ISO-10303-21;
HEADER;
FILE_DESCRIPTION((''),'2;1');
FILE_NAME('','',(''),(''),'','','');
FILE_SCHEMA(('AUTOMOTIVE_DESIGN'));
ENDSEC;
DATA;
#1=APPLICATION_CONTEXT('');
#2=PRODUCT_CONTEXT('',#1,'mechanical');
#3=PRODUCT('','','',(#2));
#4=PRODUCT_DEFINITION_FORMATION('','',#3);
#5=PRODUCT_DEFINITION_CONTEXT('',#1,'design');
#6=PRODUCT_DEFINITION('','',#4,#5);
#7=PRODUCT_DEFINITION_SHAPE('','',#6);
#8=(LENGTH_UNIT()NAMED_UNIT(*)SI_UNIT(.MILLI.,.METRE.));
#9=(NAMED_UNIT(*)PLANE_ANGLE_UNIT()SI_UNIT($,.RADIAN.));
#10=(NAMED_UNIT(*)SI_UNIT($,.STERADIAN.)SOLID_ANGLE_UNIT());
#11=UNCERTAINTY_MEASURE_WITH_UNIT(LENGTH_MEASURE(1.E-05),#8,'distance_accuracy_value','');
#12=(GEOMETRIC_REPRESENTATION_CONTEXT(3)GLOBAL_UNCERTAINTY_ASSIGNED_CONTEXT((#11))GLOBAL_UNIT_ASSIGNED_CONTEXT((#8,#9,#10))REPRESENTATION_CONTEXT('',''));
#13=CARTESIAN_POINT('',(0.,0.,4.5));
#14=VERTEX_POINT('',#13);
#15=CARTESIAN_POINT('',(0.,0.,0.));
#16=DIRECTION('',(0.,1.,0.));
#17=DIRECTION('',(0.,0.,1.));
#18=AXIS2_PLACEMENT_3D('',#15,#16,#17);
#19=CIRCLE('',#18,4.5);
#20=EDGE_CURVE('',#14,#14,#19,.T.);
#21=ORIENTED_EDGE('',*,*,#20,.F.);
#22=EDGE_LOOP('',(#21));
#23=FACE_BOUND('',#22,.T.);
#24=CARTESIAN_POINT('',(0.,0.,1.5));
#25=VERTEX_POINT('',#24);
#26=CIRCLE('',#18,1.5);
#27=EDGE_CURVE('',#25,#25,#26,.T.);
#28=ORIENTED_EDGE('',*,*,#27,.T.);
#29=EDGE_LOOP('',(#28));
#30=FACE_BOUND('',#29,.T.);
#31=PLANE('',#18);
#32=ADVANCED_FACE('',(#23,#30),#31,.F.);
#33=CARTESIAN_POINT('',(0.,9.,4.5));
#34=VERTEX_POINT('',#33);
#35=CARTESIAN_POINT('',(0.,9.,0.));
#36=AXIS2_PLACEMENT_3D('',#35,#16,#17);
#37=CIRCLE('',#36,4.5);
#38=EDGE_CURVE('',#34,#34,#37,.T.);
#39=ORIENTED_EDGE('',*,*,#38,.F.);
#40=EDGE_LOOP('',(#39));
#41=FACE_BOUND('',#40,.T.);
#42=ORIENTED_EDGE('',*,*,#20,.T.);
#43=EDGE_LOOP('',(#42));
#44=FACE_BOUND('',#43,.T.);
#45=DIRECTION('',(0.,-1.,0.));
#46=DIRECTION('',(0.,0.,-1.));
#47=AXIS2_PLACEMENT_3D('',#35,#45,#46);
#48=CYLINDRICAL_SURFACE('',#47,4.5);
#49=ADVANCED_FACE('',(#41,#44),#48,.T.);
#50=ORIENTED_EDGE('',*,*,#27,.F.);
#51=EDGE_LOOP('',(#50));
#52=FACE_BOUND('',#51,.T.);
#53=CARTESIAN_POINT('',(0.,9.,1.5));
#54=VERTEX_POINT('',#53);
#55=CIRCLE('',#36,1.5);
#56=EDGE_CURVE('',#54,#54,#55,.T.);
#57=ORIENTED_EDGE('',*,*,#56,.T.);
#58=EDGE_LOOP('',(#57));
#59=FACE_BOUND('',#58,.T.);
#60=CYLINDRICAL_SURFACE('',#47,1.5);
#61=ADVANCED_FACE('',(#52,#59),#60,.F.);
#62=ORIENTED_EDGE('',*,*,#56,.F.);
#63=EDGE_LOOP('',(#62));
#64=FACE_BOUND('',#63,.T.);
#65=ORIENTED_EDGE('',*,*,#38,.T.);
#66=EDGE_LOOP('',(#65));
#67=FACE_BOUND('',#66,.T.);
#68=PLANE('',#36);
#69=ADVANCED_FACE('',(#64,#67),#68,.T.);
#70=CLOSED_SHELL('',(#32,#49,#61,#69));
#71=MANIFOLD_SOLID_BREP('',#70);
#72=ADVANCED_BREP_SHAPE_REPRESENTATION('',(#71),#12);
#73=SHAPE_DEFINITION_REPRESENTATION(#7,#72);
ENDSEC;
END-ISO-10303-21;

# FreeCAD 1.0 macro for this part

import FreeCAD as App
import Part
import Sketcher

V = App.Vector

doc = App.newDocument("Part")
body = doc.addObject("PartDesign::Body", "Body")

# Sketch on XZ plane
sketch1 = body.newObject("Sketcher::SketchObject", "Sketch")
sketch1.AttachmentSupport = (doc.getObject("XZ_Plane"), [""])
sketch1.MapMode = "FlatFace"
sketch1.addGeometry([
    Part.Circle(V(0, 0, 0), V(0, 0, 1), 4.5),
    Part.Circle(V(0, 0, 0), V(0, 0, 1), 1.5),
], False)
sketch1.addConstraint([
    Sketcher.Constraint("Coincident", 0, 3, -1, 1),
    Sketcher.Constraint("Coincident", 1, 3, -1, 1),
    Sketcher.Constraint("Diameter", 0, 9.0),
    Sketcher.Constraint("Diameter", 1, 3.0),
])
pad1 = body.newObject("PartDesign::Pad", "Pad")
pad1.Profile = sketch1
pad1.Length = 9
pad1.Reversed = True

doc.recompute()
